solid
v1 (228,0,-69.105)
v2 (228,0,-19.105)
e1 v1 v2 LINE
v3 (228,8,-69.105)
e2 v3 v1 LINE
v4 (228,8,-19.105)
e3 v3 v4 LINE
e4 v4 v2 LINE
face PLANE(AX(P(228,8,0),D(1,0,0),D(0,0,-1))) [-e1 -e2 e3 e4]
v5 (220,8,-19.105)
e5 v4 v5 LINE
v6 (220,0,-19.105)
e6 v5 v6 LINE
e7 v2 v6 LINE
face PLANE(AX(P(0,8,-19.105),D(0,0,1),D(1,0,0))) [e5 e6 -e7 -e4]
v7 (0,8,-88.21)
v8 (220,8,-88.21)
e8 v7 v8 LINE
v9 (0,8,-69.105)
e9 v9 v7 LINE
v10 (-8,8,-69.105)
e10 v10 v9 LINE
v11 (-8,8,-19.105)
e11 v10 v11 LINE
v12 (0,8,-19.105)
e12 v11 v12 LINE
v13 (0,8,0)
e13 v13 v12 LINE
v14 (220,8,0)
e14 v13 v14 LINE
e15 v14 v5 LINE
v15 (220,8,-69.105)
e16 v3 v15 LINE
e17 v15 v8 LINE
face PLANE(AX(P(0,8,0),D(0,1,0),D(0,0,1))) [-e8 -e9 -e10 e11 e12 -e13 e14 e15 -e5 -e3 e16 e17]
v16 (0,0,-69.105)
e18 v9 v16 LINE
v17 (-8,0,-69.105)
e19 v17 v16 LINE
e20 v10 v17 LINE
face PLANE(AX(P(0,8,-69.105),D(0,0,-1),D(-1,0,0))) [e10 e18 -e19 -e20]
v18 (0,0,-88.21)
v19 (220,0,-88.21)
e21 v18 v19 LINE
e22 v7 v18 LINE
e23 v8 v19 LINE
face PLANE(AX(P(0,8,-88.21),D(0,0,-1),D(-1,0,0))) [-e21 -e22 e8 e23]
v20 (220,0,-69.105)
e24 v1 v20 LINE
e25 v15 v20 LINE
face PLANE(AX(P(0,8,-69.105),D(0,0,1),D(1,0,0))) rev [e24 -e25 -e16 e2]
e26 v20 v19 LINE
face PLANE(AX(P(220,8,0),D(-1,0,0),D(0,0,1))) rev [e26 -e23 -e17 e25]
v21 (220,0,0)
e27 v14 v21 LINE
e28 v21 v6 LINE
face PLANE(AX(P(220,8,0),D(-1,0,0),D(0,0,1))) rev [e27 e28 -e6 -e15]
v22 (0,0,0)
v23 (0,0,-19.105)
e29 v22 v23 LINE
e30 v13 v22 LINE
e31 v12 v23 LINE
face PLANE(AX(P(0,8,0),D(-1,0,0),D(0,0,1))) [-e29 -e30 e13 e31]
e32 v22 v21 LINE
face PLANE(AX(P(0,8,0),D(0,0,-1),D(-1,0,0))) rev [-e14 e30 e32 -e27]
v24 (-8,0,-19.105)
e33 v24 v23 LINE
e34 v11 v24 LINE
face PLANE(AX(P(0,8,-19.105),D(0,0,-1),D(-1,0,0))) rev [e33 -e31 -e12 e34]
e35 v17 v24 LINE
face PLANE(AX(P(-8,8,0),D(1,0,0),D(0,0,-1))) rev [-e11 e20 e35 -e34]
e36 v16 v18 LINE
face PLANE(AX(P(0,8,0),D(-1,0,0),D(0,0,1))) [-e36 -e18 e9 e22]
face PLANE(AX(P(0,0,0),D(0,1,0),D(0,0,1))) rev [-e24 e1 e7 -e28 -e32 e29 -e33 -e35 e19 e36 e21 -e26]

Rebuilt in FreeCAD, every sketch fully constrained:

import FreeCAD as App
import Part
import Sketcher
from FreeCAD import Vector

doc = App.newDocument("Part")
params = doc.addObject("Spreadsheet::Sheet", "Params")
for row, (alias, value) in enumerate([
    ("sketch1_width", "8 mm"),
    ("sketch1_width2", "220 mm"),
    ("sketch1_height", "50 mm"),
    ("pad1_length", "8 mm"),
], start=1):
    params.set(f"A{row}", alias)
    params.set(f"B{row}", "=" + value)
    params.setAlias(f"B{row}", alias)

body = doc.addObject("PartDesign::Body", "Body")

# Sketch on XZ plane
sketch1 = body.newObject("Sketcher::SketchObject", "Sketch")
sketch1.AttachmentSupport = (doc.getObject("XZ_Plane"), [""])
sketch1.MapMode = "FlatFace"
sketch1.addGeometry([
    Part.LineSegment(Vector(-8, -69, 0), Vector(-8, -19, 0)),  # 0
    Part.LineSegment(Vector(-8, -19, 0), Vector(0, -19, 0)),  # 1
    Part.LineSegment(Vector(0, -19, 0), Vector(0, 0, 0)),  # 2
    Part.LineSegment(Vector(0, 0, 0), Vector(220, 0, 0)),  # 3
    Part.LineSegment(Vector(220, 0, 0), Vector(220, -19, 0)),  # 4
    Part.LineSegment(Vector(220, -19, 0), Vector(228, -19, 0)),  # 5
    Part.LineSegment(Vector(228, -19, 0), Vector(228, -69, 0)),  # 6
    Part.LineSegment(Vector(228, -69, 0), Vector(220, -69, 0)),  # 7
    Part.LineSegment(Vector(220, -69, 0), Vector(220, -88, 0)),  # 8
    Part.LineSegment(Vector(220, -88, 0), Vector(0, -88, 0)),  # 9
    Part.LineSegment(Vector(0, -88, 0), Vector(0, -69, 0)),  # 10
    Part.LineSegment(Vector(0, -69, 0), Vector(-8, -69, 0)),  # 11
], False)
sketch1.addConstraint([
    Sketcher.Constraint("Coincident", 0, 2, 1, 1),
    Sketcher.Constraint("Coincident", 1, 2, 2, 1),
    Sketcher.Constraint("Coincident", 2, 2, 3, 1),
    Sketcher.Constraint("Coincident", 3, 2, 4, 1),
    Sketcher.Constraint("Coincident", 4, 2, 5, 1),
    Sketcher.Constraint("Coincident", 5, 2, 6, 1),
    Sketcher.Constraint("Coincident", 6, 2, 7, 1),
    Sketcher.Constraint("Coincident", 7, 2, 8, 1),
    Sketcher.Constraint("Coincident", 8, 2, 9, 1),
    Sketcher.Constraint("Coincident", 9, 2, 10, 1),
    Sketcher.Constraint("Coincident", 10, 2, 11, 1),
    Sketcher.Constraint("Coincident", 11, 2, 0, 1),
    Sketcher.Constraint("Vertical", 0),
    Sketcher.Constraint("Horizontal", 1),
    Sketcher.Constraint("Vertical", 2),
    Sketcher.Constraint("Horizontal", 3),
    Sketcher.Constraint("Vertical", 4),
    Sketcher.Constraint("Horizontal", 5),
    Sketcher.Constraint("Vertical", 6),
    Sketcher.Constraint("Horizontal", 7),
    Sketcher.Constraint("Vertical", 8),
    Sketcher.Constraint("Horizontal", 9),
    Sketcher.Constraint("Vertical", 10),
    Sketcher.Constraint("Horizontal", 11),
    Sketcher.Constraint("Coincident", 2, 2, -1, 1),
    Sketcher.Constraint("PointOnObject", 9, 2, -2),
    Sketcher.Constraint("Horizontal", 1, 2, 4, 2),
    Sketcher.Constraint("Horizontal", 7, 2, 10, 2),
    Sketcher.Constraint("Vertical", 4, 2, 7, 2),
    Sketcher.Constraint("Equal", 1, 5),
    Sketcher.Constraint("Equal", 4, 8),
    Sketcher.Constraint("DistanceX", 1, 1, 1, 2, 8.0),
    Sketcher.Constraint("DistanceX", 3, 1, 3, 2, 220.0),
    Sketcher.Constraint("DistanceY", 0, 1, 0, 2, 50.0),
    Sketcher.Constraint("DistanceY", 2, 1, 2, 2, 19.105),
])
sketch1.setExpression("Constraints[31]", "Params.sketch1_width")
sketch1.setExpression("Constraints[32]", "Params.sketch1_width2")
sketch1.setExpression("Constraints[33]", "Params.sketch1_height")
pad1 = body.newObject("PartDesign::Pad", "Pad")
pad1.Profile = sketch1
pad1.setExpression("Length", "Params.pad1_length")
pad1.Reversed = True

doc.recompute()
